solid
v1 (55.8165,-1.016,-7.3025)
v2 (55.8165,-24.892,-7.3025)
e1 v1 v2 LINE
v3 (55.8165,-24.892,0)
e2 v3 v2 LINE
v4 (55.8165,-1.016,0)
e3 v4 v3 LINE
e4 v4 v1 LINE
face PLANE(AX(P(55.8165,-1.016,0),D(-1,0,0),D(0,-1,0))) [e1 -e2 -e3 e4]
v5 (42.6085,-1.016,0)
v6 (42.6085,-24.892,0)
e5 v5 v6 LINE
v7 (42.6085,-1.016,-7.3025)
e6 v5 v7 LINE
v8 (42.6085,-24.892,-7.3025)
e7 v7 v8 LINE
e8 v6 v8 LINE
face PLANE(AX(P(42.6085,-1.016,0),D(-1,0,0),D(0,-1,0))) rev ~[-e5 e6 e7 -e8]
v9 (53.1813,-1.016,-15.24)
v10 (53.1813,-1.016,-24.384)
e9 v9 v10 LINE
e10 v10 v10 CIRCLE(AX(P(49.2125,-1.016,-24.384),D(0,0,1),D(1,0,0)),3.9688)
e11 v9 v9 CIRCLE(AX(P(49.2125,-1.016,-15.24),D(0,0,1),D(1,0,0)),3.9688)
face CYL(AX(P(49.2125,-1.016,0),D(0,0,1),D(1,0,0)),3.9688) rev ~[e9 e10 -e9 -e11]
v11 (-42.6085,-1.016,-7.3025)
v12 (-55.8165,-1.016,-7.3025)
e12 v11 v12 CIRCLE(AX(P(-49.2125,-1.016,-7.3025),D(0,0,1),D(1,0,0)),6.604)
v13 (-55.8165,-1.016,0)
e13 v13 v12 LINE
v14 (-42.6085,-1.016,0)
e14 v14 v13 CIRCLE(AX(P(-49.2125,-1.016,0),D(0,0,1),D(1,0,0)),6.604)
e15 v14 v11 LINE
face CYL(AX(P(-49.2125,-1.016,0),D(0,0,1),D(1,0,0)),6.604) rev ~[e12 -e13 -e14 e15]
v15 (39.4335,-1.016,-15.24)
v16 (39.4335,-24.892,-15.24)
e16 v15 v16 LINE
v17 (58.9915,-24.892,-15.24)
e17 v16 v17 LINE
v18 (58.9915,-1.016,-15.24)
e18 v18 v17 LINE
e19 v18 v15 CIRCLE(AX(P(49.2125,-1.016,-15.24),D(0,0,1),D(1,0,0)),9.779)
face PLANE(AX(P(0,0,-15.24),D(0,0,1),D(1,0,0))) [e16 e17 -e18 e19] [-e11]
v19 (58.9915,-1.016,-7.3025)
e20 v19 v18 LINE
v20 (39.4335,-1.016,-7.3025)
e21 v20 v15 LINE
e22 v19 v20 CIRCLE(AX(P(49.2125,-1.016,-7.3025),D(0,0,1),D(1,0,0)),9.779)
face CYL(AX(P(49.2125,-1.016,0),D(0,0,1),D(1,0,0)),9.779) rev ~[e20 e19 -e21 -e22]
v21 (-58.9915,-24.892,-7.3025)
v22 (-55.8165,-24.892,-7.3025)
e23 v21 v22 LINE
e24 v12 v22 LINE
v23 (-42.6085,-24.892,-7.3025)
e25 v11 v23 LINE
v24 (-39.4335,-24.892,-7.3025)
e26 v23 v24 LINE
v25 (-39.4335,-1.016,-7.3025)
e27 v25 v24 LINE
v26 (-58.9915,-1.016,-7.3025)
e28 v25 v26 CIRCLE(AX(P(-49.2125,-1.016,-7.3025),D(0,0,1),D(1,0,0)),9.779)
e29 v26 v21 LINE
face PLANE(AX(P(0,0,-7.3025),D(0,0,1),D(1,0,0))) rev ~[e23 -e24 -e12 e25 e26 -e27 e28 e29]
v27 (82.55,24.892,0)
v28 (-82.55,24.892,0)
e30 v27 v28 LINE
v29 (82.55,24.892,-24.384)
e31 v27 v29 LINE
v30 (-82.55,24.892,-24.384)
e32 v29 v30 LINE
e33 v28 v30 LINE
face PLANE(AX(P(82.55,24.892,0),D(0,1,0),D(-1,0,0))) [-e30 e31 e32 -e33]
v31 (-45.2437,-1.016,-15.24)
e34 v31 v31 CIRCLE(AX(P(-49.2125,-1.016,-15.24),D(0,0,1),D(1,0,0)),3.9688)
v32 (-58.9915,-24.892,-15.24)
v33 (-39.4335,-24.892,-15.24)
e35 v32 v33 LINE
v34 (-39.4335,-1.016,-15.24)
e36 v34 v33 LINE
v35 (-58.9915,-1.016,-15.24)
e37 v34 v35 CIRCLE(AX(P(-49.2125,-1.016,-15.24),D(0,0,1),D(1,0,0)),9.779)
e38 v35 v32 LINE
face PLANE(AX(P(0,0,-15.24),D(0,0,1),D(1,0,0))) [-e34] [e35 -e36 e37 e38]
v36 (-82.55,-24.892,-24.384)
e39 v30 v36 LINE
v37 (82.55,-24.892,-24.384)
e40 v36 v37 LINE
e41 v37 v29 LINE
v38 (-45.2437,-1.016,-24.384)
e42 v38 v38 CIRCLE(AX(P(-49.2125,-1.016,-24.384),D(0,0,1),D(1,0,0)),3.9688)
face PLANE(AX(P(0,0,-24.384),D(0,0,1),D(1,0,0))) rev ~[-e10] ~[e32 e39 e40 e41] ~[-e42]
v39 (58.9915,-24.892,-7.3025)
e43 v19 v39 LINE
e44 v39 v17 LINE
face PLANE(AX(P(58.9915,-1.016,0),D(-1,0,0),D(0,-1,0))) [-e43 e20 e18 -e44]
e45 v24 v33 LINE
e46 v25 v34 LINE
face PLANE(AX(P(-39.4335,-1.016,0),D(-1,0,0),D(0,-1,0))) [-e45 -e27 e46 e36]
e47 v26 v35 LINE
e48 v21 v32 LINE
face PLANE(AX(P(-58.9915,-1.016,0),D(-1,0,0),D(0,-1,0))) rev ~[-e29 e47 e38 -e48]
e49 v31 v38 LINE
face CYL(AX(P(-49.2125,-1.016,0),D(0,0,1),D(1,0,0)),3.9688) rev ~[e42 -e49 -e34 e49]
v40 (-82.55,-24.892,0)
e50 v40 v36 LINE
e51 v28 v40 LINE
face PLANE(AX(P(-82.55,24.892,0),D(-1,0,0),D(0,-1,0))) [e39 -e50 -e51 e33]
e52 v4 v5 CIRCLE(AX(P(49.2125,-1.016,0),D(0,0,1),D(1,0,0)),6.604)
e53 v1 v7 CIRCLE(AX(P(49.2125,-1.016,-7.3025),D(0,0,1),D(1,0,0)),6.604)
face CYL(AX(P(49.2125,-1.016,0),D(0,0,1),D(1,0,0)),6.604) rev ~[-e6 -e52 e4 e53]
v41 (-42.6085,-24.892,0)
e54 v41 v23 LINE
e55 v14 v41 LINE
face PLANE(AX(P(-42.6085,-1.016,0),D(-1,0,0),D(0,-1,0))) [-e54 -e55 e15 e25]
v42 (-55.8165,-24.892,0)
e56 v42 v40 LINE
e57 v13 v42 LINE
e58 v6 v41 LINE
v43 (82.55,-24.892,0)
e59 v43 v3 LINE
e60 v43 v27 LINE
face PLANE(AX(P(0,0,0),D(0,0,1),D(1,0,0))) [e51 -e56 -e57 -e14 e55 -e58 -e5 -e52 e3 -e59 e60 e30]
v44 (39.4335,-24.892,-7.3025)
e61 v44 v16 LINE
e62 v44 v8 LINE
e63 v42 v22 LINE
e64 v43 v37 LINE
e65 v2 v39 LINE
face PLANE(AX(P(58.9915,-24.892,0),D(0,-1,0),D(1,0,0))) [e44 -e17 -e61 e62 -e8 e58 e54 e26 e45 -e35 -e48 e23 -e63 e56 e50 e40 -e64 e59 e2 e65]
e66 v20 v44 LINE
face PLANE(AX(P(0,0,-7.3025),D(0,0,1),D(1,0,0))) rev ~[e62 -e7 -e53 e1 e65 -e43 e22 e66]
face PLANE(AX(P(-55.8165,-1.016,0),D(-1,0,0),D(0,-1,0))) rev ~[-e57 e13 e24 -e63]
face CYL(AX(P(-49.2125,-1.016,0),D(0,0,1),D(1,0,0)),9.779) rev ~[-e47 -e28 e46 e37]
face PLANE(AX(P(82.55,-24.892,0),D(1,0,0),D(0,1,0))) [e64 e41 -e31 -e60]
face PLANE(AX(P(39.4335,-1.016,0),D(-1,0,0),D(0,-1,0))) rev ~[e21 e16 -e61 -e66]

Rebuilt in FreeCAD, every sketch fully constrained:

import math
import FreeCAD as App
import Part
import Sketcher
Q = App.Units.Quantity


def add_polygon(sketch, points):
    """Adds a closed chain of lines whose ends are joined by coincident constraints."""
    first, n = sketch.GeometryCount, len(points)
    for a, b in zip(points, points[1:] + points[:1]):
        sketch.addGeometry(Part.LineSegment(App.Vector(*a, 0), App.Vector(*b, 0)), False)
    for i in range(n):
        sketch.addConstraint(Sketcher.Constraint("Coincident", first + i, 2, first + (i + 1) % n, 1))

doc = App.newDocument("Part")
body = doc.addObject("PartDesign::Body", "Body")

# Sketch on XY plane
sketch1 = body.newObject("Sketcher::SketchObject", "Sketch")
sketch1.AttachmentSupport = (doc.getObject("XY_Plane"), [""])
sketch1.MapMode = "FlatFace"
add_polygon(sketch1, [(82.5, -24.9), (82.5, 24.9), (-82.5, 24.9), (-82.5, -24.9)])  # lines 0-3
sketch1.addGeometry(Part.Circle(App.Vector(49.2, -1, 0), App.Vector(0, 0, 1), 4), False)  # 4
sketch1.addGeometry(Part.Circle(App.Vector(-49.2, -1, 0), App.Vector(0, 0, 1), 4), False)  # 5
sketch1.addConstraint([
    Sketcher.Constraint("Vertical", 0),
    Sketcher.Constraint("Horizontal", 1),
    Sketcher.Constraint("Vertical", 2),
    Sketcher.Constraint("Horizontal", 3),
    Sketcher.Constraint("Equal", 4, 5),
    Sketcher.Constraint("Symmetric", 0, 2, 2, 2, -1, 1),
    Sketcher.Constraint("Symmetric", 4, 3, 5, 3, -2),
    Sketcher.Constraint("Diameter", 4, Q("0.3125 in")),
    Sketcher.Constraint("DistanceX", 1, 2, 1, 1, Q("6.5 in")),
    Sketcher.Constraint("DistanceY", 0, 1, 0, 2, Q("1.96 in")),
    Sketcher.Constraint("DistanceY", 2, 2, 5, 3, Q("0.94 in")),
    Sketcher.Constraint("DistanceX", -1, 1, 4, 3, Q("1.9375 in")),
])
pad1 = body.newObject("PartDesign::Pad", "Pad")
pad1.Profile = sketch1
pad1.Length = Q("0.96 in")
pad1.Reversed = True

# Sketch on XY plane
sketch2 = body.newObject("Sketcher::SketchObject", "Sketch001")
sketch2.AttachmentSupport = (doc.getObject("XY_Plane"), [""])
sketch2.MapMode = "FlatFace"
sketch2.addGeometry([
    Part.LineSegment(App.Vector(59, -24.9, 0), App.Vector(59, -1, 0)),  # 0
    Part.ArcOfCircle(Part.Circle(App.Vector(49.2, -1, 0), App.Vector(0, 0, 1), 9.8), math.radians(0), math.radians(180)),  # 1
    Part.LineSegment(App.Vector(39.4, -1, 0), App.Vector(39.4, -24.9, 0)),  # 2
    Part.LineSegment(App.Vector(39.4, -24.9, 0), App.Vector(59, -24.9, 0)),  # 3
    Part.Circle(App.Vector(49.2, -1, 0), App.Vector(0, 0, 1), 4),  # 4
    Part.LineSegment(App.Vector(-59, -1, 0), App.Vector(-59, -24.9, 0)),  # 5
    Part.LineSegment(App.Vector(-59, -24.9, 0), App.Vector(-39.4, -24.9, 0)),  # 6
    Part.LineSegment(App.Vector(-39.4, -24.9, 0), App.Vector(-39.4, -1, 0)),  # 7
    Part.ArcOfCircle(Part.Circle(App.Vector(-49.2, -1, 0), App.Vector(0, 0, 1), 9.8), math.radians(0), math.radians(180)),  # 8
    Part.Circle(App.Vector(-49.2, -1, 0), App.Vector(0, 0, 1), 4),  # 9
], False)
sketch2.addConstraint([
    Sketcher.Constraint("Tangent", 0, 2, 1, 1),
    Sketcher.Constraint("Tangent", 1, 2, 2, 1),
    Sketcher.Constraint("Coincident", 2, 2, 3, 1),
    Sketcher.Constraint("Coincident", 3, 2, 0, 1),
    Sketcher.Constraint("Coincident", 5, 2, 6, 1),
    Sketcher.Constraint("Coincident", 6, 2, 7, 1),
    Sketcher.Constraint("Tangent", 7, 2, 8, 1),
    Sketcher.Constraint("Tangent", 8, 2, 5, 1),
    Sketcher.Constraint("Vertical", 0),
    Sketcher.Constraint("Vertical", 2),
    Sketcher.Constraint("Horizontal", 3),
    Sketcher.Constraint("Vertical", 5),
    Sketcher.Constraint("Horizontal", 6),
    Sketcher.Constraint("Vertical", 7),
    Sketcher.Constraint("Coincident", 4, 3, 1, 3),
    Sketcher.Constraint("Coincident", 9, 3, 8, 3),
    Sketcher.Constraint("Equal", 1, 8),
    Sketcher.Constraint("Equal", 4, 9),
    Sketcher.Constraint("Symmetric", 1, 3, 8, 3, -2),
    Sketcher.Constraint("Horizontal", 3, 2, 5, 2),
    Sketcher.Constraint("Diameter", 4, Q("0.3125 in")),
    Sketcher.Constraint("Radius", 1, Q("0.385 in")),
    Sketcher.Constraint("DistanceY", 0, 1, 0, 2, Q("0.94 in")),
    Sketcher.Constraint("DistanceX", -1, 1, 1, 3, Q("1.9375 in")),
    Sketcher.Constraint("DistanceY", 1, 3, -1, 1, Q("0.04 in")),
])
pocket1 = body.newObject("PartDesign::Pocket", "Pocket")
pocket1.Profile = sketch2
pocket1.Length = Q("0.6 in")

# Sketch on XY plane
sketch3 = body.newObject("Sketcher::SketchObject", "Sketch002")
sketch3.AttachmentSupport = (doc.getObject("XY_Plane"), [""])
sketch3.MapMode = "FlatFace"
sketch3.addGeometry([
    Part.LineSegment(App.Vector(55.8, -24.9, 0), App.Vector(59, -24.9, 0)),  # 0
    Part.LineSegment(App.Vector(59, -24.9, 0), App.Vector(59, -1, 0)),  # 1
    Part.ArcOfCircle(Part.Circle(App.Vector(49.2, -1, 0), App.Vector(0, 0, 1), 9.8), math.radians(0), math.radians(180)),  # 2
    Part.LineSegment(App.Vector(39.4, -1, 0), App.Vector(39.4, -24.9, 0)),  # 3
    Part.LineSegment(App.Vector(39.4, -24.9, 0), App.Vector(42.6, -24.9, 0)),  # 4
    Part.LineSegment(App.Vector(42.6, -24.9, 0), App.Vector(42.6, -1, 0)),  # 5
    Part.ArcOfCircle(Part.Circle(App.Vector(49.2, -1, 0), App.Vector(0, 0, 1), 6.6), math.radians(0), math.radians(180)),  # 6
    Part.LineSegment(App.Vector(55.8, -1, 0), App.Vector(55.8, -24.9, 0)),  # 7
    Part.LineSegment(App.Vector(-59, -1, 0), App.Vector(-59, -24.9, 0)),  # 8
    Part.LineSegment(App.Vector(-59, -24.9, 0), App.Vector(-55.8, -24.9, 0)),  # 9
    Part.LineSegment(App.Vector(-55.8, -24.9, 0), App.Vector(-55.8, -1, 0)),  # 10
    Part.ArcOfCircle(Part.Circle(App.Vector(-49.2, -1, 0), App.Vector(0, 0, 1), 6.6), math.radians(0), math.radians(180)),  # 11
    Part.LineSegment(App.Vector(-42.6, -1, 0), App.Vector(-42.6, -24.9, 0)),  # 12
    Part.LineSegment(App.Vector(-42.6, -24.9, 0), App.Vector(-39.4, -24.9, 0)),  # 13
    Part.LineSegment(App.Vector(-39.4, -24.9, 0), App.Vector(-39.4, -1, 0)),  # 14
    Part.ArcOfCircle(Part.Circle(App.Vector(-49.2, -1, 0), App.Vector(0, 0, 1), 9.8), math.radians(0), math.radians(180)),  # 15
], False)
sketch3.addConstraint([
    Sketcher.Constraint("Coincident", 0, 2, 1, 1),
    Sketcher.Constraint("Tangent", 1, 2, 2, 1),
    Sketcher.Constraint("Tangent", 2, 2, 3, 1),
    Sketcher.Constraint("Coincident", 3, 2, 4, 1),
    Sketcher.Constraint("Coincident", 4, 2, 5, 1),
    Sketcher.Constraint("Tangent", 5, 2, 6, 2),
    Sketcher.Constraint("Tangent", 6, 1, 7, 1),
    Sketcher.Constraint("Coincident", 7, 2, 0, 1),
    Sketcher.Constraint("Coincident", 8, 2, 9, 1),
    Sketcher.Constraint("Coincident", 9, 2, 10, 1),
    Sketcher.Constraint("Tangent", 10, 2, 11, 2),
    Sketcher.Constraint("Tangent", 11, 1, 12, 1),
    Sketcher.Constraint("Coincident", 12, 2, 13, 1),
    Sketcher.Constraint("Coincident", 13, 2, 14, 1),
    Sketcher.Constraint("Tangent", 14, 2, 15, 1),
    Sketcher.Constraint("Tangent", 15, 2, 8, 1),
    Sketcher.Constraint("Horizontal", 0),
    Sketcher.Constraint("Vertical", 1),
    Sketcher.Constraint("Vertical", 3),
    Sketcher.Constraint("Horizontal", 4),
    Sketcher.Constraint("Vertical", 5),
    Sketcher.Constraint("Vertical", 7),
    Sketcher.Constraint("Vertical", 8),
    Sketcher.Constraint("Horizontal", 9),
    Sketcher.Constraint("Vertical", 10),
    Sketcher.Constraint("Vertical", 12),
    Sketcher.Constraint("Horizontal", 13),
    Sketcher.Constraint("Vertical", 14),
    Sketcher.Constraint("Coincident", 6, 3, 2, 3),
    Sketcher.Constraint("Coincident", 15, 3, 11, 3),
    Sketcher.Constraint("Equal", 6, 11),
    Sketcher.Constraint("Equal", 2, 15),
    Sketcher.Constraint("Symmetric", 2, 3, 11, 3, -2),
    Sketcher.Constraint("Horizontal", 0, 2, 3, 2),
    Sketcher.Constraint("Horizontal", 7, 2, 8, 2),
    Sketcher.Constraint("Horizontal", 9, 2, 12, 2),
    Sketcher.Constraint("Radius", 6, Q("0.26 in")),
    Sketcher.Constraint("Radius", 2, Q("0.385 in")),
    Sketcher.Constraint("DistanceY", 1, 1, 1, 2, Q("0.94 in")),
    Sketcher.Constraint("DistanceX", -1, 1, 2, 3, Q("1.9375 in")),
    Sketcher.Constraint("DistanceY", 2, 3, -1, 1, Q("0.04 in")),
])
pad2 = body.newObject("PartDesign::Pad", "Pad001")
pad2.Profile = sketch3
pad2.Length = Q("0.2875 in")
pad2.Reversed = True

doc.recompute()
